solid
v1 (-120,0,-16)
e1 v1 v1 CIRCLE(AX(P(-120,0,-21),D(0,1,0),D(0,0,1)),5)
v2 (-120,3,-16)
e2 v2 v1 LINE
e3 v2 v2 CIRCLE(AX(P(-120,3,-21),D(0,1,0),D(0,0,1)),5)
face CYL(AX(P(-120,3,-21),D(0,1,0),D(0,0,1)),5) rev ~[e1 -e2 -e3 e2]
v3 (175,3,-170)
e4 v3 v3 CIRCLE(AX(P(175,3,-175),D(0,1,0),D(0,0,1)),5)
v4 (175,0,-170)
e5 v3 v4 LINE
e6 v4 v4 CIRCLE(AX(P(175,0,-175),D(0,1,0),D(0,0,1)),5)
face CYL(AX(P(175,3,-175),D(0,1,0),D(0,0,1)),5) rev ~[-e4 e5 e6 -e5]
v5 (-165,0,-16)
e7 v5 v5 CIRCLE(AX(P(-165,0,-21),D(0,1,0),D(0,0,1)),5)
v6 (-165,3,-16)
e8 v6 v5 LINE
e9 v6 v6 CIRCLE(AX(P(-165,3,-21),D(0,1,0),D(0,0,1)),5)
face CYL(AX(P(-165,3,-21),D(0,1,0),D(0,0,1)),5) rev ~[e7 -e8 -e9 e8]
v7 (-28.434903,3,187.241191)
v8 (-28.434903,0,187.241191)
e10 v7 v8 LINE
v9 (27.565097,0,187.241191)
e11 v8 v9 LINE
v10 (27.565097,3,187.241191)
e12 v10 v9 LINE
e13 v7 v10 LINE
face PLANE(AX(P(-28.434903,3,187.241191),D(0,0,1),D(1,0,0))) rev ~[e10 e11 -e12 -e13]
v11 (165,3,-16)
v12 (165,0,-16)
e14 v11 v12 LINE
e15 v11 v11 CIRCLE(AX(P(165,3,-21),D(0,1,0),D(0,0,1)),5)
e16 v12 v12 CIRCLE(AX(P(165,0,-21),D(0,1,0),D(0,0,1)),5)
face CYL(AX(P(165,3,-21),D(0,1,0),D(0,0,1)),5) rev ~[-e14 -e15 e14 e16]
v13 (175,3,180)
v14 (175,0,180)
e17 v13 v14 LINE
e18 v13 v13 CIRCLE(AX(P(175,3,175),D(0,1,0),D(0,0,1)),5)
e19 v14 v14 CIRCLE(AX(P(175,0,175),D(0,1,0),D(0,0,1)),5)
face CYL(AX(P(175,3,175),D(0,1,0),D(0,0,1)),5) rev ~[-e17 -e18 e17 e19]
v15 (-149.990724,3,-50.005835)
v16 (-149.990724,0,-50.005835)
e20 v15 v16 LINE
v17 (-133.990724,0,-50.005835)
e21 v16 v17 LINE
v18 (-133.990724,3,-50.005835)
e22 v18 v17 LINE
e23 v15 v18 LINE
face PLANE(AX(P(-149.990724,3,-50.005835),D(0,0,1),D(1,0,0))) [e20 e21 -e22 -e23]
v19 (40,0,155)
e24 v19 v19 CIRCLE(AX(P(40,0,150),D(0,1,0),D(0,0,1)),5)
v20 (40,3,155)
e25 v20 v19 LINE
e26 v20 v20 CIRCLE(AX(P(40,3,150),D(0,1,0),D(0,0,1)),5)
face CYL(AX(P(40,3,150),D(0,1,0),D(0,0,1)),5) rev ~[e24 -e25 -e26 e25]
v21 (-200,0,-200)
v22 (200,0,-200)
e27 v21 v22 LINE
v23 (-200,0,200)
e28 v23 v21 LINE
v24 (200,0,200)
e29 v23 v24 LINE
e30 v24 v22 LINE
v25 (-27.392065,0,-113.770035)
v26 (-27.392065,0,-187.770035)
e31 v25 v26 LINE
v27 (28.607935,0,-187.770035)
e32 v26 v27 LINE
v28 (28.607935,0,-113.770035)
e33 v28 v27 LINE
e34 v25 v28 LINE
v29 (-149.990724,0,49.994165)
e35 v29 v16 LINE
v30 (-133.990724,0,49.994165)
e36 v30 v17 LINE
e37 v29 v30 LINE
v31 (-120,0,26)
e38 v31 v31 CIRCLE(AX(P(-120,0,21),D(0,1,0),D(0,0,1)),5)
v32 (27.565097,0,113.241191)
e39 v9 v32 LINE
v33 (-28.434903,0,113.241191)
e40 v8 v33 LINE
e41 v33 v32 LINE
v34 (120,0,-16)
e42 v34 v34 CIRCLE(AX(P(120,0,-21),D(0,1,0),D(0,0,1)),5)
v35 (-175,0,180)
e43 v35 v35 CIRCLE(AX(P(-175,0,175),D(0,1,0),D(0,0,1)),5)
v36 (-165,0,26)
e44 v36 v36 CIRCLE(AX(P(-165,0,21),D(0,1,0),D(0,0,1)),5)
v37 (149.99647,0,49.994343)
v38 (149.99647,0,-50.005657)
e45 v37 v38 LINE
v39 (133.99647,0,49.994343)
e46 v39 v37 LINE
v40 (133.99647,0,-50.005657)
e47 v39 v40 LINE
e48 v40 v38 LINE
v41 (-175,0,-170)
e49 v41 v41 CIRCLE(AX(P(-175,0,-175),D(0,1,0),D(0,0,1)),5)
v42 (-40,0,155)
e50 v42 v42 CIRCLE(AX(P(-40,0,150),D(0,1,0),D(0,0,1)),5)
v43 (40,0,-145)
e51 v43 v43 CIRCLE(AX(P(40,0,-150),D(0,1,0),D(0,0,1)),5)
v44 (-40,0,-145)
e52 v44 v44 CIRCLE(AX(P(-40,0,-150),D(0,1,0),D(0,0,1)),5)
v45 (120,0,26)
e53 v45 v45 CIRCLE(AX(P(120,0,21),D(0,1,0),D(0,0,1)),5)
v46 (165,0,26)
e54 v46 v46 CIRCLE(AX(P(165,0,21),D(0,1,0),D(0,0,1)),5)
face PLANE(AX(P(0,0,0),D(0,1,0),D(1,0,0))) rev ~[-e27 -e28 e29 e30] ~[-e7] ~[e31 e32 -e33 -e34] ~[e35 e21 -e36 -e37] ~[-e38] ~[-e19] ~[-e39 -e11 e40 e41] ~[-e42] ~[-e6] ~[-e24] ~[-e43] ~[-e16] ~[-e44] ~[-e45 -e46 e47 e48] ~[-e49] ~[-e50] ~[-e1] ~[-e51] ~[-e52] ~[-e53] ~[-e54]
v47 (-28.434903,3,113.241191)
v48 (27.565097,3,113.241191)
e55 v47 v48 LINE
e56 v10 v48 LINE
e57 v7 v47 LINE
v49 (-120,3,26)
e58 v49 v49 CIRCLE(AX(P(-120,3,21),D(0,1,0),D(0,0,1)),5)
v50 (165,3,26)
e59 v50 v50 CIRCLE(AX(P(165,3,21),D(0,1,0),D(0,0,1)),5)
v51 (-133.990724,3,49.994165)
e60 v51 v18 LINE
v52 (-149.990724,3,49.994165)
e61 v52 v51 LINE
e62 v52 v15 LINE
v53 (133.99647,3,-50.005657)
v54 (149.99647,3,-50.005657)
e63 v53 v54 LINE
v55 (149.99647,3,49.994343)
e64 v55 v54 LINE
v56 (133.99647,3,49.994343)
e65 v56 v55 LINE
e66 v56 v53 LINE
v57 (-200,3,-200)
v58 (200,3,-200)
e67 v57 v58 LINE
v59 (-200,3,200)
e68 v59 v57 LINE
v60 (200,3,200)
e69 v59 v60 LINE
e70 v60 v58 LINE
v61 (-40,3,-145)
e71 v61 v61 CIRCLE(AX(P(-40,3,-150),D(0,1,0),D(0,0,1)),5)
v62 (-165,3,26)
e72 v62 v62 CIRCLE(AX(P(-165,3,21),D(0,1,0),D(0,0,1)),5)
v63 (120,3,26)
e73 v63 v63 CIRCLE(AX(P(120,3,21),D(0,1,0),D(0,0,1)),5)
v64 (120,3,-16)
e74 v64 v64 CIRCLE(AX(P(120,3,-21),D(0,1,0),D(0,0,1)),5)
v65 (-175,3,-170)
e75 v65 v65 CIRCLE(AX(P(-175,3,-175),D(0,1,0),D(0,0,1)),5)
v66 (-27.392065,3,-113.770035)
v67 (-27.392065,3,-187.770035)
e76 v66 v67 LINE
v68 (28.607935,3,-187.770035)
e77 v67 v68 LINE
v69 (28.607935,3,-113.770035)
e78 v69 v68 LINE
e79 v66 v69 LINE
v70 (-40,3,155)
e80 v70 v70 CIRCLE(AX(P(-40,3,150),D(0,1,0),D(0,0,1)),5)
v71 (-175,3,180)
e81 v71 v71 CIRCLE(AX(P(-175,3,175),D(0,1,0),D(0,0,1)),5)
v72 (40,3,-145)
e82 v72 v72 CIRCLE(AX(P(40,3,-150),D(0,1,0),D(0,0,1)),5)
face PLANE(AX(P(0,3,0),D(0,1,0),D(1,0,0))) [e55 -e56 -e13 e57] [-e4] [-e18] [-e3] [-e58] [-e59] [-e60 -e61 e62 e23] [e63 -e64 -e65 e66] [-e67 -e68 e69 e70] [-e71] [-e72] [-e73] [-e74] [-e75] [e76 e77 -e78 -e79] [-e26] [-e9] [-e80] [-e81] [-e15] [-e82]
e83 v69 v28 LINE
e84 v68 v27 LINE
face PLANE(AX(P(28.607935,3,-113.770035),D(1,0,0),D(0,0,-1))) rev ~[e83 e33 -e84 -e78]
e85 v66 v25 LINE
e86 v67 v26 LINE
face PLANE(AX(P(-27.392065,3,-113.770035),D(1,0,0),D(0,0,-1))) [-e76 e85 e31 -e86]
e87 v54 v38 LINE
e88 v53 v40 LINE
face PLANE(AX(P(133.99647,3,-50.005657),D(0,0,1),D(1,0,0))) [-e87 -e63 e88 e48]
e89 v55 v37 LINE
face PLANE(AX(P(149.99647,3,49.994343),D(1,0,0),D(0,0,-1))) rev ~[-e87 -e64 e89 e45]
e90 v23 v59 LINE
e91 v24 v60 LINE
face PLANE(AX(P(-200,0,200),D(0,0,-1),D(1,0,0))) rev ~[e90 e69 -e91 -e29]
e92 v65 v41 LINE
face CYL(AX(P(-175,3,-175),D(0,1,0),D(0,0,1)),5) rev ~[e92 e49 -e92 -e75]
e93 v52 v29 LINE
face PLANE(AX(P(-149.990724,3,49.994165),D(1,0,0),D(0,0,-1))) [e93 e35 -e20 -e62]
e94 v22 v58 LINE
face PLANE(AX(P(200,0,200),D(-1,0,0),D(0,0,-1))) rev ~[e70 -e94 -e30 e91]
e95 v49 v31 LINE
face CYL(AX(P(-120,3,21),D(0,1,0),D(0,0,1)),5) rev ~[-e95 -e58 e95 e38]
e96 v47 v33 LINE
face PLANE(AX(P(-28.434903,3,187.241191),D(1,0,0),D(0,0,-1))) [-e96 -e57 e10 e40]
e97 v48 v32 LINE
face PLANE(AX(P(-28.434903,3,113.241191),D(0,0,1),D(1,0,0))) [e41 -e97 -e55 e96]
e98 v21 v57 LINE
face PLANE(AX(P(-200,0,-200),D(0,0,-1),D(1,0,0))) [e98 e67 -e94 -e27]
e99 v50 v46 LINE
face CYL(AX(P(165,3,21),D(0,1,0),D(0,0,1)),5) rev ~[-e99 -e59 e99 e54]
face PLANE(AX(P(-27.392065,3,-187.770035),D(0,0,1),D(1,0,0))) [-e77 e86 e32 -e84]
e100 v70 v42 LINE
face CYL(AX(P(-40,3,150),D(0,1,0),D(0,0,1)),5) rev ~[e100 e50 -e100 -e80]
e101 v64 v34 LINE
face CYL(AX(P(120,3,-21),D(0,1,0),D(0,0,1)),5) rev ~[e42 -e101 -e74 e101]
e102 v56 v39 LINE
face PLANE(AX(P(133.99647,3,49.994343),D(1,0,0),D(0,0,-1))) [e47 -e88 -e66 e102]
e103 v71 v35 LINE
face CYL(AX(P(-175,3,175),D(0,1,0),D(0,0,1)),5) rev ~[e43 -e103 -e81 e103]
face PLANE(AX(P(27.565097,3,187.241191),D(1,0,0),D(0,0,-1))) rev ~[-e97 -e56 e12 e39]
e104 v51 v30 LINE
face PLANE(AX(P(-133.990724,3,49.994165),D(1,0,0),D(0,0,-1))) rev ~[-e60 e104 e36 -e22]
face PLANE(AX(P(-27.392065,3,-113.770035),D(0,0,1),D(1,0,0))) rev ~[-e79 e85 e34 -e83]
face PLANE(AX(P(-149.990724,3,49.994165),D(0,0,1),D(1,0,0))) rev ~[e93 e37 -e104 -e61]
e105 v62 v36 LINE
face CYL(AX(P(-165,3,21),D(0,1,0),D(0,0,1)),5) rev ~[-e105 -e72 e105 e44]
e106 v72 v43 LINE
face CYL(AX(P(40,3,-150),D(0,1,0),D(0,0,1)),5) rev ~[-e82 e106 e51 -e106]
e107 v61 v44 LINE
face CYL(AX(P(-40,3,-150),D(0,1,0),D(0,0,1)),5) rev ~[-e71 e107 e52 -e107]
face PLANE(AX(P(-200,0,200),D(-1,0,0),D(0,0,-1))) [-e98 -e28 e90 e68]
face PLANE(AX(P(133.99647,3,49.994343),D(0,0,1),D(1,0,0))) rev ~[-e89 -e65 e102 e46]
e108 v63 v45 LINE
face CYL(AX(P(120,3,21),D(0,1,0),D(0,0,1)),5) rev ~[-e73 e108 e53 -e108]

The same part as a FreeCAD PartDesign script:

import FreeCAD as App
import Part
import Sketcher
from FreeCAD import Vector


def add_polygon(sketch, points):
    """Adds a closed chain of lines whose ends are joined by coincident constraints."""
    first, n = sketch.GeometryCount, len(points)
    for a, b in zip(points, points[1:] + points[:1]):
        sketch.addGeometry(Part.LineSegment(App.Vector(*a, 0), App.Vector(*b, 0)), False)
    for i in range(n):
        sketch.addConstraint(Sketcher.Constraint("Coincident", first + i, 2, first + (i + 1) % n, 1))

doc = App.newDocument("Part")
body = doc.addObject("PartDesign::Body", "Body")

sketch1 = body.newObject("Sketcher::SketchObject", "Sketch")
sketch1.AttachmentSupport = (doc.getObject("XZ_Plane"), [""])
sketch1.MapMode = "FlatFace"
add_polygon(sketch1, [(-200, -200), (-200, 200), (200, 200), (200, -200)])
sketch1.addConstraint([
    Sketcher.Constraint("Vertical", 0),
    Sketcher.Constraint("Horizontal", 1),
    Sketcher.Constraint("Vertical", 2),
    Sketcher.Constraint("Horizontal", 3),
    Sketcher.Constraint("Symmetric", 0, 2, 2, 2, -1, 1),
    Sketcher.Constraint("Equal", 3, 0),
    Sketcher.Constraint("DistanceX", 1, 1, 1, 2, 400.0),
])
pad1 = body.newObject("PartDesign::Pad", "Pad")
pad1.Profile = sketch1
pad1.Length = 3
pad1.Reversed = True

sketch2 = body.newObject("Sketcher::SketchObject", "Sketch001")
sketch2.AttachmentSupport = (doc.getObject("XZ_Plane"), [""])
sketch2.MapMode = "FlatFace"
sketch2.AttachmentOffset = App.Placement(Vector(0, 0, -3), App.Rotation())
add_polygon(sketch2, [(-149.990724, -50.005835), (-149.990724, 49.994165), (-133.990724, 49.994165), (-133.990724, -50.005835)])
add_polygon(sketch2, [(133.99647, -50.005657), (133.99647, 49.994343), (149.99647, 49.994343), (149.99647, -50.005657)])
sketch2.addConstraint([
    Sketcher.Constraint("Vertical", 0),
    Sketcher.Constraint("Horizontal", 1),
    Sketcher.Constraint("Vertical", 2),
    Sketcher.Constraint("Horizontal", 3),
    Sketcher.Constraint("Vertical", 4),
    Sketcher.Constraint("Horizontal", 5),
    Sketcher.Constraint("Vertical", 6),
    Sketcher.Constraint("Horizontal", 7),
    Sketcher.Constraint("Equal", 3, 5),
    Sketcher.Constraint("Equal", 2, 4),
    Sketcher.Constraint("DistanceX", 1, 1, 1, 2, 16.0),
    Sketcher.Constraint("DistanceY", 0, 1, 0, 2, 100.0),
    Sketcher.Constraint("DistanceX", -1, 1, 4, 2, 133.99647),
    Sketcher.Constraint("DistanceX", 0, 2, -1, 1, 149.990724),
    Sketcher.Constraint("DistanceY", -1, 1, 0, 2, 49.994165),
    Sketcher.Constraint("DistanceY", -1, 1, 4, 2, 49.994343),
])
pocket1 = body.newObject("PartDesign::Pocket", "Pocket")
pocket1.Profile = sketch2
pocket1.Length = 3
pocket1.Reversed = True

sketch3 = body.newObject("Sketcher::SketchObject", "Sketch002")
sketch3.AttachmentSupport = (doc.getObject("XZ_Plane"), [""])
sketch3.MapMode = "FlatFace"
sketch3.AttachmentOffset = App.Placement(Vector(0, 0, -3), App.Rotation())
add_polygon(sketch3, [(-27.392065, -187.770035), (-27.392065, -113.770035), (28.607935, -113.770035), (28.607935, -187.770035)])
add_polygon(sketch3, [(-28.434903, 113.241191), (-28.434903, 187.241191), (27.565097, 187.241191), (27.565097, 113.241191)])
sketch3.addConstraint([
    Sketcher.Constraint("Vertical", 0),
    Sketcher.Constraint("Horizontal", 1),
    Sketcher.Constraint("Vertical", 2),
    Sketcher.Constraint("Horizontal", 3),
    Sketcher.Constraint("Vertical", 4),
    Sketcher.Constraint("Horizontal", 5),
    Sketcher.Constraint("Vertical", 6),
    Sketcher.Constraint("Horizontal", 7),
    Sketcher.Constraint("Equal", 3, 5),
    Sketcher.Constraint("Equal", 2, 4),
    Sketcher.Constraint("DistanceX", 1, 1, 1, 2, 56.0),
    Sketcher.Constraint("DistanceY", 0, 1, 0, 2, 74.0),
    Sketcher.Constraint("DistanceY", -1, 1, 4, 2, 187.241191),
    Sketcher.Constraint("DistanceX", 0, 2, -1, 1, 27.392065),
    Sketcher.Constraint("DistanceY", 0, 2, -1, 1, 113.770035),
    Sketcher.Constraint("DistanceX", 4, 2, -1, 1, 28.434903),
])
pocket2 = body.newObject("PartDesign::Pocket", "Pocket001")
pocket2.Profile = sketch3
pocket2.Length = 3
pocket2.Reversed = True

sketch4 = body.newObject("Sketcher::SketchObject", "Sketch003")
sketch4.AttachmentSupport = (doc.getObject("XZ_Plane"), [""])
sketch4.MapMode = "FlatFace"
sketch4.AttachmentOffset = App.Placement(Vector(0, 0, -3), App.Rotation())
sketch4.addGeometry([
    Part.Circle(Vector(-165, -21, 0), Vector(0, 0, 1), 5),
    Part.Circle(Vector(-165, 21, 0), Vector(0, 0, 1), 5),
    Part.Circle(Vector(-120, -21, 0), Vector(0, 0, 1), 5),
    Part.Circle(Vector(-120, 21, 0), Vector(0, 0, 1), 5),
    Part.Circle(Vector(165, -21, 0), Vector(0, 0, 1), 5),
    Part.Circle(Vector(165, 21, 0), Vector(0, 0, 1), 5),
    Part.Circle(Vector(120, -21, 0), Vector(0, 0, 1), 5),
    Part.Circle(Vector(120, 21, 0), Vector(0, 0, 1), 5),
    Part.Circle(Vector(-40, 150, 0), Vector(0, 0, 1), 5),
    Part.Circle(Vector(40, 150, 0), Vector(0, 0, 1), 5),
    Part.Circle(Vector(-40, -150, 0), Vector(0, 0, 1), 5),
    Part.Circle(Vector(40, -150, 0), Vector(0, 0, 1), 5),
    Part.Circle(Vector(-175, -175, 0), Vector(0, 0, 1), 5),
    Part.Circle(Vector(175, -175, 0), Vector(0, 0, 1), 5),
    Part.Circle(Vector(175, 175, 0), Vector(0, 0, 1), 5),
    Part.Circle(Vector(-175, 175, 0), Vector(0, 0, 1), 5),
], False)
sketch4.addConstraint([
    Sketcher.Constraint("Equal", 0, 1),
    Sketcher.Constraint("Equal", 1, 2),
    Sketcher.Constraint("Equal", 2, 3),
    Sketcher.Constraint("Equal", 3, 4),
    Sketcher.Constraint("Equal", 4, 5),
    Sketcher.Constraint("Equal", 5, 6),
    Sketcher.Constraint("Equal", 6, 7),
    Sketcher.Constraint("Equal", 7, 8),
    Sketcher.Constraint("Equal", 8, 9),
    Sketcher.Constraint("Equal", 9, 10),
    Sketcher.Constraint("Equal", 10, 11),
    Sketcher.Constraint("Equal", 11, 12),
    Sketcher.Constraint("Equal", 12, 13),
    Sketcher.Constraint("Equal", 13, 14),
    Sketcher.Constraint("Equal", 14, 15),
    Sketcher.Constraint("Symmetric", 1, 3, 4, 3, -1, 1),
    Sketcher.Constraint("Symmetric", 0, 3, 5, 3, -1, 1),
    Sketcher.Constraint("Symmetric", 3, 3, 6, 3, -1, 1),
    Sketcher.Constraint("Symmetric", 2, 3, 7, 3, -1, 1),
    Sketcher.Constraint("Symmetric", 9, 3, 10, 3, -1, 1),
    Sketcher.Constraint("Symmetric", 8, 3, 11, 3, -1, 1),
    Sketcher.Constraint("Symmetric", 12, 3, 14, 3, -1, 1),
    Sketcher.Constraint("Symmetric", 13, 3, 15, 3, -1, 1),
    Sketcher.Constraint("Symmetric", 0, 3, 4, 3, -2),
    Sketcher.Constraint("Symmetric", 2, 3, 6, 3, -2),
    Sketcher.Constraint("Symmetric", 8, 3, 9, 3, -2),
    Sketcher.Constraint("Symmetric", 12, 3, 13, 3, -2),
    Sketcher.Constraint("Horizontal", 0, 3, 2, 3),
    Sketcher.Constraint("Diameter", 0, 10.0),
    Sketcher.Constraint("DistanceX", 0, 3, -1, 1, 165.0),
    Sketcher.Constraint("DistanceY", 0, 3, -1, 1, 21.0),
    Sketcher.Constraint("DistanceX", 2, 3, -1, 1, 120.0),
    Sketcher.Constraint("DistanceX", 8, 3, -1, 1, 40.0),
    Sketcher.Constraint("DistanceY", -1, 1, 8, 3, 150.0),
    Sketcher.Constraint("DistanceX", 12, 3, -1, 1, 175.0),
    Sketcher.Constraint("DistanceY", 12, 3, -1, 1, 175.0),
])
pocket3 = body.newObject("PartDesign::Pocket", "Pocket002")
pocket3.Profile = sketch4
pocket3.Length = 3
pocket3.Reversed = True

doc.recompute()
